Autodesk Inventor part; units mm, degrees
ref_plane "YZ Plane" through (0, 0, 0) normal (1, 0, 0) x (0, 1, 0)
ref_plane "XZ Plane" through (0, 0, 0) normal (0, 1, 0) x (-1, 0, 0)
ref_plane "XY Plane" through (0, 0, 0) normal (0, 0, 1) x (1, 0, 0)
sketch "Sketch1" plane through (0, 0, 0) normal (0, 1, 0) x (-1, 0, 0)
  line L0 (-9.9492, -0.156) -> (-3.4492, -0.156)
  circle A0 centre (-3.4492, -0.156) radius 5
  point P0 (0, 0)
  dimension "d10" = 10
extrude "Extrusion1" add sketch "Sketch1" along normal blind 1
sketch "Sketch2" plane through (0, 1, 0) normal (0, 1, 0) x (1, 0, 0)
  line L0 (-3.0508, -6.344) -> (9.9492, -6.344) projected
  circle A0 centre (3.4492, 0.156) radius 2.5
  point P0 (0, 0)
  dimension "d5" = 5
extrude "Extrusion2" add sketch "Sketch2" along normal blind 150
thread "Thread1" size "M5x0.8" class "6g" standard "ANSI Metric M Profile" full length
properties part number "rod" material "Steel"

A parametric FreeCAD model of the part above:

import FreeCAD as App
import Part
import Sketcher
from FreeCAD import Vector
Q = App.Units.Quantity

doc = App.newDocument("Part")
body = doc.addObject("PartDesign::Body", "Body")

# Sketch on XZ plane
sketch1 = body.newObject("Sketcher::SketchObject", "Sketch")
sketch1.AttachmentSupport = (doc.getObject("XZ_Plane"), [""])
sketch1.MapMode = "FlatFace"
sketch1.addGeometry(Part.Circle(Vector(3, 0, 0), Vector(0, 0, 1), 5), False)
sketch1.addConstraint([
    Sketcher.Constraint("Diameter", 0, Q("10 mm")),
    Sketcher.Constraint("DistanceY", 0, 3, -1, 1, Q("0.156 mm")),
    Sketcher.Constraint("DistanceX", -1, 1, 0, 3, Q("3.4492 mm")),
])
pad1 = body.newObject("PartDesign::Pad", "Pad")
pad1.Profile = sketch1
pad1.Length = 1
pad1.Reversed = True

# Sketch on XZ plane
sketch2 = body.newObject("Sketcher::SketchObject", "Sketch001")
sketch2.AttachmentSupport = (doc.getObject("XZ_Plane"), [""])
sketch2.MapMode = "FlatFace"
sketch2.AttachmentOffset = App.Placement(Vector(0, 0, -1), App.Rotation())
sketch2.addGeometry(Part.Circle(Vector(3.4, -0.2, 0), Vector(0, 0, 1), 2.5), False)
sketch2.addConstraint([
    Sketcher.Constraint("Diameter", 0, Q("5 mm")),
    Sketcher.Constraint("DistanceY", 0, 3, -1, 1, Q("0.156 mm")),
    Sketcher.Constraint("DistanceX", -1, 1, 0, 3, Q("3.4492 mm")),
])
pad2 = body.newObject("PartDesign::Pad", "Pad001")
pad2.Profile = sketch2
pad2.Length = 150
pad2.Reversed = True

doc.recompute()
